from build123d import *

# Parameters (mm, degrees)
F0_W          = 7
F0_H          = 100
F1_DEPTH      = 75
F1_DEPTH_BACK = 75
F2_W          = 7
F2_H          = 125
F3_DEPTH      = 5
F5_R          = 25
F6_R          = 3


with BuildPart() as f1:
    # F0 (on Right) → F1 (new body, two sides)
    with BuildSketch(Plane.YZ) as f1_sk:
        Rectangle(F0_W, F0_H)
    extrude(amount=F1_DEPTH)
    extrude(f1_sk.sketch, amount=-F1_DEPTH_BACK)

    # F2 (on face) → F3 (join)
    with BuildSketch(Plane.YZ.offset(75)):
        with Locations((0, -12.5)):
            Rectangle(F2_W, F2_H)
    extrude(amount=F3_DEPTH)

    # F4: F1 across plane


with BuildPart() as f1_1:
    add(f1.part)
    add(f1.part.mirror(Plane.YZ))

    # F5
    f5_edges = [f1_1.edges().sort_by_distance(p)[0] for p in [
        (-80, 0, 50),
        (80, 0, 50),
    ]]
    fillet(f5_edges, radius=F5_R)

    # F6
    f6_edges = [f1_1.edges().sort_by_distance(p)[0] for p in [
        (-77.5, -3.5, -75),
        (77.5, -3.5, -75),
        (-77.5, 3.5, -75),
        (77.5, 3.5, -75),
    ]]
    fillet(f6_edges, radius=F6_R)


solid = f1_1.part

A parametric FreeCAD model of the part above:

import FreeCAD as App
import Part
import Sketcher


def edges_at(feature, points):
    """Names of the edges that pass closest to the given points."""
    edges = feature.Shape.Edges
    near = lambda p: min(range(len(edges)), key=lambda i: edges[i].distToShape(Part.Vertex(*p))[0])
    return sorted({f"Edge{near(p) + 1}" for p in points})


def add_polygon(sketch, points):
    """Adds a closed chain of lines whose ends are joined by coincident constraints."""
    first, n = sketch.GeometryCount, len(points)
    for a, b in zip(points, points[1:] + points[:1]):
        sketch.addGeometry(Part.LineSegment(App.Vector(*a, 0), App.Vector(*b, 0)), False)
    for i in range(n):
        sketch.addConstraint(Sketcher.Constraint("Coincident", first + i, 2, first + (i + 1) % n, 1))

doc = App.newDocument("Part")
body = doc.addObject("PartDesign::Body", "Body")

# Sketch on YZ plane
sketch1 = body.newObject("Sketcher::SketchObject", "Sketch")
sketch1.AttachmentSupport = (doc.getObject("YZ_Plane"), [""])
sketch1.MapMode = "FlatFace"
add_polygon(sketch1, [(-4, 50), (-4, -50), (4, -50), (4, 50)])  # lines 0-3
sketch1.addConstraint(Sketcher.Constraint("Vertical", 0))
sketch1.addConstraint(Sketcher.Constraint("Horizontal", 1))
sketch1.addConstraint(Sketcher.Constraint("Vertical", 2))
sketch1.addConstraint(Sketcher.Constraint("Horizontal", 3))
sketch1.addConstraint(Sketcher.Constraint("Symmetric", 0, 2, 2, 2, -1, 1))
sketch1.addConstraint(Sketcher.Constraint("DistanceX", 1, 1, 1, 2, 7.0))
sketch1.addConstraint(Sketcher.Constraint("DistanceY", 0, 2, 0, 1, 100.0))
pad1 = body.newObject("PartDesign::Pad", "Pad")
pad1.Profile = sketch1
pad1.Type = "TwoLengths"
pad1.Length = 75
pad1.Length2 = 75

# Sketch on YZ plane
sketch2 = body.newObject("Sketcher::SketchObject", "Sketch001")
sketch2.AttachmentSupport = (doc.getObject("YZ_Plane"), [""])
sketch2.MapMode = "FlatFace"
sketch2.AttachmentOffset = App.Placement(App.Vector(0, 0, 75), App.Rotation())
add_polygon(sketch2, [(-4, 50), (-4, -75), (4, -75), (4, 50)])  # lines 0-3
sketch2.addConstraint(Sketcher.Constraint("Vertical", 0))
sketch2.addConstraint(Sketcher.Constraint("Horizontal", 1))
sketch2.addConstraint(Sketcher.Constraint("Vertical", 2))
sketch2.addConstraint(Sketcher.Constraint("Horizontal", 3))
sketch2.addConstraint(Sketcher.Constraint("DistanceX", 1, 1, 1, 2, 7.0))
sketch2.addConstraint(Sketcher.Constraint("DistanceY", 0, 2, 0, 1, 125.0))
sketch2.addConstraint(Sketcher.Constraint("DistanceY", 0, 2, -1, 1, 75.0))
sketch2.addConstraint(Sketcher.Constraint("DistanceX", 0, 2, -1, 1, 3.5))
pad2 = body.newObject("PartDesign::Pad", "Pad001")
pad2.Profile = sketch2
pad2.Length = 5
body2 = doc.addObject("PartDesign::Body", "Body001")
doc.recompute()

body2.BaseFeature = body
doc.recompute()

mirroring = doc.addObject("Part::Mirroring", "Mirroring")
mirroring.Source = body
mirroring.Base = App.Vector(0, 0, 0)
mirroring.Normal = App.Vector(1, 0, 0)
body3 = doc.addObject("PartDesign::Body", "Body002")
body3.BaseFeature = mirroring
boolean = body2.newObject("PartDesign::Boolean", "Boolean")
boolean.Type = "Fuse"
boolean.addObjects([body3])
doc.recompute()

fillet = body2.newObject("PartDesign::Fillet", "Fillet")
fillet.Base = (boolean, edges_at(boolean, [(-80, 0, 50), (80, 0, 50)]))
fillet.Radius = 25
doc.recompute()

fillet2 = body2.newObject("PartDesign::Fillet", "Fillet001")
fillet2.Base = (fillet, edges_at(fillet, [
    (-77.5, -3.5, -75),
    (77.5, -3.5, -75),
    (-77.5, 3.5, -75),
    (77.5, 3.5, -75),
]))
fillet2.Radius = 3
mirroring.Visibility = False

doc.recompute()
